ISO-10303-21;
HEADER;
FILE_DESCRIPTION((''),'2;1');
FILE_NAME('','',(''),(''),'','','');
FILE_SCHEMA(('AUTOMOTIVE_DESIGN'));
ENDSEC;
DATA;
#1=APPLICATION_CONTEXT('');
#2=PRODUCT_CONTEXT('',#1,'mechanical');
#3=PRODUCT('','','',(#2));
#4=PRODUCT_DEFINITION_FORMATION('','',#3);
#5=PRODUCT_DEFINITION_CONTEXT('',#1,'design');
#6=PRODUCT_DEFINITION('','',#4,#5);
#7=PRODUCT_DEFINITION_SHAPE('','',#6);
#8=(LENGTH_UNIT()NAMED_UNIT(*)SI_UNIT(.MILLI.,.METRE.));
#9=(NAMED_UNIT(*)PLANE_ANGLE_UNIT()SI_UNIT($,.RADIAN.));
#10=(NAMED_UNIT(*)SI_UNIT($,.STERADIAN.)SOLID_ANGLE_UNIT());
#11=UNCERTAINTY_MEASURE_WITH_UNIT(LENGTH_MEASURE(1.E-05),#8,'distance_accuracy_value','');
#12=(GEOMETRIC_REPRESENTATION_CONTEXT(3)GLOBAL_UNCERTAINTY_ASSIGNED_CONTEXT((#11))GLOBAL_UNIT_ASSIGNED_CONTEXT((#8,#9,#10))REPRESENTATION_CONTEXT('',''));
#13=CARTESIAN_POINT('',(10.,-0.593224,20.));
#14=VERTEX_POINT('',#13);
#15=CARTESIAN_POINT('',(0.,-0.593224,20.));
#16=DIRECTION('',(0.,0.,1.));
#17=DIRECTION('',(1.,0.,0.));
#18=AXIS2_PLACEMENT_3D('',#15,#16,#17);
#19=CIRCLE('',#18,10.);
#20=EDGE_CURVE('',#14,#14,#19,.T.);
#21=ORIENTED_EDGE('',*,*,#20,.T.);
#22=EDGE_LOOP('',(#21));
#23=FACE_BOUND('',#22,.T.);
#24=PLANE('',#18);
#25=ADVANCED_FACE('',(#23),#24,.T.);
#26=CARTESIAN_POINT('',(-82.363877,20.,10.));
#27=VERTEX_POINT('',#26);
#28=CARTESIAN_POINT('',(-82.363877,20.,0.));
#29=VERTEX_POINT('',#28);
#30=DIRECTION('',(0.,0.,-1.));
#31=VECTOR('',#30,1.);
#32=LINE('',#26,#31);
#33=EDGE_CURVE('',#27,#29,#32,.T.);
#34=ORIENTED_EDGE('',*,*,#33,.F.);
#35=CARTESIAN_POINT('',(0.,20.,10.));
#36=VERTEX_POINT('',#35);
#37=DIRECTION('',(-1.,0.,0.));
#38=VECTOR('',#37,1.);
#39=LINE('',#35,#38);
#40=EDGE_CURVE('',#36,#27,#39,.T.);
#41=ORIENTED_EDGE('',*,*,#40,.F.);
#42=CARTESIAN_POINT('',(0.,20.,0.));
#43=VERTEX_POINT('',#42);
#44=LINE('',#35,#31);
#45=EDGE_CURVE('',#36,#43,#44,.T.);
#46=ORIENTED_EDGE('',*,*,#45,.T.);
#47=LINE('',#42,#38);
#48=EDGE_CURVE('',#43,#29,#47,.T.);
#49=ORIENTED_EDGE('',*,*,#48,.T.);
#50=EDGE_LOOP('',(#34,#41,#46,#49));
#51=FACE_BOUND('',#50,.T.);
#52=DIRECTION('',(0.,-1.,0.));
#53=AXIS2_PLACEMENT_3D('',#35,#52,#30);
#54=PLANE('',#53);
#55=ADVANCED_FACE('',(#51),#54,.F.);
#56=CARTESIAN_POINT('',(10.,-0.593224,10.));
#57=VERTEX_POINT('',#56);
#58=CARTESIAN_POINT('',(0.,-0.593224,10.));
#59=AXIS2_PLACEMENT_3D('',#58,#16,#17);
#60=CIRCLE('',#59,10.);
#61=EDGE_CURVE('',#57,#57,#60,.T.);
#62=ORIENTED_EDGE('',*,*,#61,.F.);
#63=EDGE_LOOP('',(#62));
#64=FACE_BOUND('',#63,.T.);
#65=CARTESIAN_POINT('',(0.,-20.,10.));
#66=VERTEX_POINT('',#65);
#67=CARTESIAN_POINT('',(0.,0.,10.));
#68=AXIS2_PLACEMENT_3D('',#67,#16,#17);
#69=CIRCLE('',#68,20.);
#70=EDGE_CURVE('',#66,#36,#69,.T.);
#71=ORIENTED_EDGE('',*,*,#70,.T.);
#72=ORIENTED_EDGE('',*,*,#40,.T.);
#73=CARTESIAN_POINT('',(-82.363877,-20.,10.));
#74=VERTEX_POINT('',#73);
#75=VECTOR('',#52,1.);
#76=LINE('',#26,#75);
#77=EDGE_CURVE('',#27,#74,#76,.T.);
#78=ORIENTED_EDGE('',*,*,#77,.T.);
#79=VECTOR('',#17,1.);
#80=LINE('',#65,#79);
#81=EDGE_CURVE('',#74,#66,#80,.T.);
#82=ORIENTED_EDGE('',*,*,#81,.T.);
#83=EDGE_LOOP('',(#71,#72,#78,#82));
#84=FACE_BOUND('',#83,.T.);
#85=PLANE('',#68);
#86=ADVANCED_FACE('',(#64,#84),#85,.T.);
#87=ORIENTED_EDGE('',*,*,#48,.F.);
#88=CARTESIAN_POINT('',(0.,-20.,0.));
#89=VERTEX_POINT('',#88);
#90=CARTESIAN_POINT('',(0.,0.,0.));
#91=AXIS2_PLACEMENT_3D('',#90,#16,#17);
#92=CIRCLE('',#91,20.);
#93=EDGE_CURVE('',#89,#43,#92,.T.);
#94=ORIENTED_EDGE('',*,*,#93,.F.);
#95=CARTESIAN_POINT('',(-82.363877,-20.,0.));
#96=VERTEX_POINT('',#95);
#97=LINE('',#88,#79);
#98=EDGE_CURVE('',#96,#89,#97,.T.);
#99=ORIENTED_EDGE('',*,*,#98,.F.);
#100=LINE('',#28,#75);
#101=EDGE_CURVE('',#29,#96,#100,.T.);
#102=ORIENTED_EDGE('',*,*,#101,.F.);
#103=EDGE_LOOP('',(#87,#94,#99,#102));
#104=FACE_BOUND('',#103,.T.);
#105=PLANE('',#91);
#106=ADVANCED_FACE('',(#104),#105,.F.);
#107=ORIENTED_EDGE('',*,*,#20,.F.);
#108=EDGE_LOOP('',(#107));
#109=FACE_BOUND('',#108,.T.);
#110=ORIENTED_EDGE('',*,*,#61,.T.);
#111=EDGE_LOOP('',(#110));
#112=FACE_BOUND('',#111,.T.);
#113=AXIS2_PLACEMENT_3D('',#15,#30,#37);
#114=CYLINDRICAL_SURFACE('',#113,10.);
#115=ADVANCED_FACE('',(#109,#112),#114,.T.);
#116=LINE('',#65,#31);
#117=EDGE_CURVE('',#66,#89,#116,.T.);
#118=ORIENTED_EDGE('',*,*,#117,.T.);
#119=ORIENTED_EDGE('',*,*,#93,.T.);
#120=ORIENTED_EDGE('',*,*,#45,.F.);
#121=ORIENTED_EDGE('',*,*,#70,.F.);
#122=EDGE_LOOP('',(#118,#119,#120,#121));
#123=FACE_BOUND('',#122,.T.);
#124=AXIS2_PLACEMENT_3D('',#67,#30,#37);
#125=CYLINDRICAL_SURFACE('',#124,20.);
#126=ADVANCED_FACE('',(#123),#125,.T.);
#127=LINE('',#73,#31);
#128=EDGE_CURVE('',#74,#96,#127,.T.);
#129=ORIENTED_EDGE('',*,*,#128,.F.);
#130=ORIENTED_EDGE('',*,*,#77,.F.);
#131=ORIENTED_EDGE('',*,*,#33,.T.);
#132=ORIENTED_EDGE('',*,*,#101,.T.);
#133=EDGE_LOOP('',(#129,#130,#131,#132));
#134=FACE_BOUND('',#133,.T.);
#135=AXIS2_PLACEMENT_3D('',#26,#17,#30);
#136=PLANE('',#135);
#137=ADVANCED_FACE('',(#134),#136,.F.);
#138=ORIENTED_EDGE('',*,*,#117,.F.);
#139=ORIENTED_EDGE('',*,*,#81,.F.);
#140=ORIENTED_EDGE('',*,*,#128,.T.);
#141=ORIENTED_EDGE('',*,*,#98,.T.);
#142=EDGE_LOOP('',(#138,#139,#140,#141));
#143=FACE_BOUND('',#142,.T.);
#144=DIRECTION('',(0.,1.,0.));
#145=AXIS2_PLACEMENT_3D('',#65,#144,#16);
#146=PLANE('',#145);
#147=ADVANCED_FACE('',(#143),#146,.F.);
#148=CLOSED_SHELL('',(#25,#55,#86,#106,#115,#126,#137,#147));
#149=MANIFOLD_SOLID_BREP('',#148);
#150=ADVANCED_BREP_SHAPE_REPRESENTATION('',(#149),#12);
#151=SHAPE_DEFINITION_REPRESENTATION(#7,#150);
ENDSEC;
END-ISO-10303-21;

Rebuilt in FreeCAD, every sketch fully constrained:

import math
import FreeCAD as App
import Part
import Sketcher
Q = App.Units.Quantity

doc = App.newDocument("Part")
body = doc.addObject("PartDesign::Body", "Body")

# Sketch on XY plane
sketch1 = doc.addObject("Sketcher::SketchObject", "Sketch")
body.addObject(sketch1)
sketch1.AttachmentSupport = (doc.XY_Plane, [""])
sketch1.MapMode = "FlatFace"
sketch1.addGeometry(Part.LineSegment(App.Vector(0, 20, 0), App.Vector(-82.363877, 20, 0)), False)
sketch1.addGeometry(Part.LineSegment(App.Vector(-82.363877, 20, 0), App.Vector(-82.363877, -20, 0)), False)
sketch1.addGeometry(Part.LineSegment(App.Vector(-82.363877, -20, 0), App.Vector(0, -20, 0)), False)
sketch1.addGeometry(Part.ArcOfCircle(Part.Circle(App.Vector(0, 0, 0), App.Vector(0, 0, 1), 20), math.radians(-90), math.radians(90)), False)
sketch1.addConstraint(Sketcher.Constraint("Coincident", 0, 2, 1, 1))
sketch1.addConstraint(Sketcher.Constraint("Coincident", 1, 2, 2, 1))
sketch1.addConstraint(Sketcher.Constraint("Tangent", 2, 2, 3, 1))
sketch1.addConstraint(Sketcher.Constraint("Tangent", 3, 2, 0, 1))
sketch1.addConstraint(Sketcher.Constraint("Horizontal", 0))
sketch1.addConstraint(Sketcher.Constraint("Vertical", 1))
sketch1.addConstraint(Sketcher.Constraint("Horizontal", 2))
sketch1.addConstraint(Sketcher.Constraint("Coincident", 3, 3, -1, 1))
sketch1.addConstraint(Sketcher.Constraint("Radius", 3, Q("20 mm")))
sketch1.addConstraint(Sketcher.Constraint("DistanceX", 0, 2, 0, 1, Q("82.363877 mm")))
pad1 = doc.addObject("PartDesign::Pad", "Pad")
body.addObject(pad1)
pad1.Profile = sketch1
pad1.Length = 10

# Sketch on XY plane
sketch2 = doc.addObject("Sketcher::SketchObject", "Sketch001")
body.addObject(sketch2)
sketch2.AttachmentSupport = (doc.XY_Plane, [""])
sketch2.MapMode = "FlatFace"
sketch2.AttachmentOffset = App.Placement(App.Vector(0, 0, 10), App.Rotation())
sketch2.addGeometry(Part.Circle(App.Vector(0, -0.593224, 0), App.Vector(0, 0, 1), 10), False)
sketch2.addConstraint(Sketcher.Constraint("PointOnObject", 0, 3, -2))
sketch2.addConstraint(Sketcher.Constraint("Diameter", 0, Q("20 mm")))
sketch2.addConstraint(Sketcher.Constraint("DistanceY", 0, 3, -1, 1, Q("0.593224 mm")))
pad2 = doc.addObject("PartDesign::Pad", "Pad001")
body.addObject(pad2)
pad2.Profile = sketch2
pad2.Length = 10

doc.recompute()
